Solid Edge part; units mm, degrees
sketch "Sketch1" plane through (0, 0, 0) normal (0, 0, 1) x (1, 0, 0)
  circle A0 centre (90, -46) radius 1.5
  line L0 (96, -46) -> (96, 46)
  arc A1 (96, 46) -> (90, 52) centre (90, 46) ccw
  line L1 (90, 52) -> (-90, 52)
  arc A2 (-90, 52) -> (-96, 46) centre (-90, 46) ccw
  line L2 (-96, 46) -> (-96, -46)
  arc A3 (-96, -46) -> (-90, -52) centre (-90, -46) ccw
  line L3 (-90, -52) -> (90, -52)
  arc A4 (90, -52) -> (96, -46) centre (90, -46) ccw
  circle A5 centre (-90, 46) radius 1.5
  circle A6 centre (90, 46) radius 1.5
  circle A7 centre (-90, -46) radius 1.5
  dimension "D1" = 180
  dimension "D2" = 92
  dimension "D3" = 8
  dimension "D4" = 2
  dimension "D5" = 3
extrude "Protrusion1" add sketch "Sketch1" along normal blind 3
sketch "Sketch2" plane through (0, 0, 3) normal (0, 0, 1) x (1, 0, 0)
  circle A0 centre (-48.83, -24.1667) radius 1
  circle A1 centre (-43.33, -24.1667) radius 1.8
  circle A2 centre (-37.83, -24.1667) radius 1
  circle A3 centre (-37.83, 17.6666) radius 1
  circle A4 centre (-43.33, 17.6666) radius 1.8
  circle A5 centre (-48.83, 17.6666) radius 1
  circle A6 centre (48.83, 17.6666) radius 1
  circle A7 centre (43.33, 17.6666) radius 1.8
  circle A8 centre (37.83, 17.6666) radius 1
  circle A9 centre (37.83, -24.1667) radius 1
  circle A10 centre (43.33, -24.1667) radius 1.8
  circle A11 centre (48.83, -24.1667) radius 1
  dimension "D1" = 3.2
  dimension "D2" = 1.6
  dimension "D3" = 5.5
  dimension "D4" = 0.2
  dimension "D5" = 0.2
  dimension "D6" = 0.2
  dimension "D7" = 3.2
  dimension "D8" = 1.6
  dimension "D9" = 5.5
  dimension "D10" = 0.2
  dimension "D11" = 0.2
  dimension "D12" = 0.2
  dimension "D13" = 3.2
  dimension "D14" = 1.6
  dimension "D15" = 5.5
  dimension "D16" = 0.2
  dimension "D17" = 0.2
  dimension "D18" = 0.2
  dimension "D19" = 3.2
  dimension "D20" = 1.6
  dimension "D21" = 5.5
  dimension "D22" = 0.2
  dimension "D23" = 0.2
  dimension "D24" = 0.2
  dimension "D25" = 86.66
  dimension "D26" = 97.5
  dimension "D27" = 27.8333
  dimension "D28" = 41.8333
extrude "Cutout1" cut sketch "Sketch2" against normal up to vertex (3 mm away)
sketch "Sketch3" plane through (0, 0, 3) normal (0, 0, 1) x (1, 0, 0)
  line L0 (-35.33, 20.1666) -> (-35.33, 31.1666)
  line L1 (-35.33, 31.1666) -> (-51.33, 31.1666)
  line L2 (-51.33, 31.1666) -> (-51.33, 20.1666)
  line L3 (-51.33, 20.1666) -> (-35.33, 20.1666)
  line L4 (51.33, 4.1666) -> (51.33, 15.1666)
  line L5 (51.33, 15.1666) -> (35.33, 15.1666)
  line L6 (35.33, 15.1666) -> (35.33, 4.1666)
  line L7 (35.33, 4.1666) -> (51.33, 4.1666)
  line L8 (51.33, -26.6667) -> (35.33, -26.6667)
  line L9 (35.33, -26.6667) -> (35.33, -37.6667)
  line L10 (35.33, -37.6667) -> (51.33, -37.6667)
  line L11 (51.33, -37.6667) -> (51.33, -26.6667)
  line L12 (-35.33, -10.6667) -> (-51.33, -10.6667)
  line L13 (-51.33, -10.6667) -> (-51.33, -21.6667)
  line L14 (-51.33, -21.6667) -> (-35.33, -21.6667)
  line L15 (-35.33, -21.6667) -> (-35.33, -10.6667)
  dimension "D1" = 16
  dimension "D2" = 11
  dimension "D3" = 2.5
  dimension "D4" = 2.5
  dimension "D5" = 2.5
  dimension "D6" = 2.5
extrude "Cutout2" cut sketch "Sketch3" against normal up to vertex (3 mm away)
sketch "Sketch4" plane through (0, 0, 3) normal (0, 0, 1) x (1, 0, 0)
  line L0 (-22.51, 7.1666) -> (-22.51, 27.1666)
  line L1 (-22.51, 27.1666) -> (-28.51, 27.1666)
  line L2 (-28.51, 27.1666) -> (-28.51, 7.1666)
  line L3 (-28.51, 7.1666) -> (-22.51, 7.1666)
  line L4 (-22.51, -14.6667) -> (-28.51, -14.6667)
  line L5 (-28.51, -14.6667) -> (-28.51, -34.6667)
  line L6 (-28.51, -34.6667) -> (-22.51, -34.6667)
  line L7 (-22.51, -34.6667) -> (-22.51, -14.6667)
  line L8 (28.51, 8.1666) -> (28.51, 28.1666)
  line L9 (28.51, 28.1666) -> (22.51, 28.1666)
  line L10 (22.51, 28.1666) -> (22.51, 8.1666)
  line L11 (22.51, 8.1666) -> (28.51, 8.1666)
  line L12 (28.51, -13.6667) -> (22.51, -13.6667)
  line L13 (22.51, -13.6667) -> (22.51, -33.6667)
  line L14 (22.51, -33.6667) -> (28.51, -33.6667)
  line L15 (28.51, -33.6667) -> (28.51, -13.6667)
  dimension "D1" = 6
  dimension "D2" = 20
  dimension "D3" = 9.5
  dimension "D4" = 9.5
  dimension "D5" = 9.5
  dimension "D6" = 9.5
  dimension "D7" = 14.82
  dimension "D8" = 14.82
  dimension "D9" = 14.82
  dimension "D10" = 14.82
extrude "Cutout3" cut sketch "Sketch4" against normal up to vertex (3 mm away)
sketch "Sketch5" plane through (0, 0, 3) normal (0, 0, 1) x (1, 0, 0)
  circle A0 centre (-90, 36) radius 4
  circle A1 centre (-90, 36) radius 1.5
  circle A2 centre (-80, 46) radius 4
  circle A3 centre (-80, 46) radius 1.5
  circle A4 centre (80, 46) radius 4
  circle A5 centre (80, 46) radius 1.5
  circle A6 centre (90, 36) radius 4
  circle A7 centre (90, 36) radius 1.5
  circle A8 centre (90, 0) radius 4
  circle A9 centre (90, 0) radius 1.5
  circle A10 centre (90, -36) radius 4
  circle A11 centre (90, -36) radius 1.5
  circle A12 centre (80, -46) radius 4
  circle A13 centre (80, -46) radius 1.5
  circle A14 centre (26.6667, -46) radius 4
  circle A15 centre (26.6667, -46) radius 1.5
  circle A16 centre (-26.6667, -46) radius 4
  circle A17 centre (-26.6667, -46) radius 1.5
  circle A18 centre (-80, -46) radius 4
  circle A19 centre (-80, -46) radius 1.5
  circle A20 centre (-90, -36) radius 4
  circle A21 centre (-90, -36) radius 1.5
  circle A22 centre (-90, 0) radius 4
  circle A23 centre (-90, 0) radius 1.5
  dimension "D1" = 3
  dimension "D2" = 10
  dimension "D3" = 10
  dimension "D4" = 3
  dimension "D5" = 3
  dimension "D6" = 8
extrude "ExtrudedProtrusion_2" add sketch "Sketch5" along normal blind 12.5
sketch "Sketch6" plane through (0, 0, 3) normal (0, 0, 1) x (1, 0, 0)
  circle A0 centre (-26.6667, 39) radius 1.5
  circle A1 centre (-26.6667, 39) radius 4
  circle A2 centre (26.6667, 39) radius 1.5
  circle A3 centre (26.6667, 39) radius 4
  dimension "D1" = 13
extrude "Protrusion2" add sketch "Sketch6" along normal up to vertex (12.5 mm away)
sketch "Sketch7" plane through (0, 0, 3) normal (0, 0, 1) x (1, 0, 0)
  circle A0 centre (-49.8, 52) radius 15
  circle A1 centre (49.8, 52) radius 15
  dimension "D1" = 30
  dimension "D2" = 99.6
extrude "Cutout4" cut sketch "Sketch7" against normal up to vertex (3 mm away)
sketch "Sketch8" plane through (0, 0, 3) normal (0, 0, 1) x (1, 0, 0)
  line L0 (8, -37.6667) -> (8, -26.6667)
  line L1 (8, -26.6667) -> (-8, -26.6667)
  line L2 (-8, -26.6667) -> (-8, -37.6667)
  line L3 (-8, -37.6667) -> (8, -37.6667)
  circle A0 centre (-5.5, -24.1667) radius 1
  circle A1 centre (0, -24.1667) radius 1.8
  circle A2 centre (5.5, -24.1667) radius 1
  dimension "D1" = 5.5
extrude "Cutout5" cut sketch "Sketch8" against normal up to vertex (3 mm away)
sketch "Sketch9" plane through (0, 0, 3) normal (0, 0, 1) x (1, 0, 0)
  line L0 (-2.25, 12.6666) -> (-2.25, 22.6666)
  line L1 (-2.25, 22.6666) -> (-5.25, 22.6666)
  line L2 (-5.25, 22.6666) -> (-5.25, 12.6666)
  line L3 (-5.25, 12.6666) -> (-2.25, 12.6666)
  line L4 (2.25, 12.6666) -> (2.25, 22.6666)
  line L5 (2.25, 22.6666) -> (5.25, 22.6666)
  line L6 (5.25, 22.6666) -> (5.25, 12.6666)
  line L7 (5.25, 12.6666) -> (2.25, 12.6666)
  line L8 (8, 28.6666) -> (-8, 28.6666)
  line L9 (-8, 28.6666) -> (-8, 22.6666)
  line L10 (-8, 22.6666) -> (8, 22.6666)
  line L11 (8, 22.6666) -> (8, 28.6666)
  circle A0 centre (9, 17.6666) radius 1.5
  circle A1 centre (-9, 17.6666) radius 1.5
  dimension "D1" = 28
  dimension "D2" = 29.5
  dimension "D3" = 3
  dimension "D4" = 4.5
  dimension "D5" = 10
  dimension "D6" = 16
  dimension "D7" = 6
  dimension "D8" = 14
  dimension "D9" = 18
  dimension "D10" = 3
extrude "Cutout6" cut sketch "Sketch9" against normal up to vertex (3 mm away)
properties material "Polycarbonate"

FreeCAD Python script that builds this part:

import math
import FreeCAD as App
import Part
import Sketcher
Q = App.Units.Quantity

doc = App.newDocument("Part")
body = doc.addObject("PartDesign::Body", "Body")

sketch1 = body.newObject("Sketcher::SketchObject", "Sketch")
sketch1.AttachmentSupport = (doc.getObject("XY_Plane"), [""])
sketch1.MapMode = "FlatFace"
sketch1.addGeometry([
    Part.ArcOfCircle(Part.Circle(App.Vector(90, -46, 0), App.Vector(0, 0, 1), 6), math.radians(-90), math.radians(0)),
    Part.LineSegment(App.Vector(96, -46, 0), App.Vector(96, 46, 0)),
    Part.ArcOfCircle(Part.Circle(App.Vector(90, 46, 0), App.Vector(0, 0, 1), 6), math.radians(0), math.radians(90)),
    Part.LineSegment(App.Vector(90, 52, 0), App.Vector(-90, 52, 0)),
    Part.ArcOfCircle(Part.Circle(App.Vector(-90, 46, 0), App.Vector(0, 0, 1), 6), math.radians(90), math.radians(180)),
    Part.LineSegment(App.Vector(-96, 46, 0), App.Vector(-96, -46, 0)),
    Part.ArcOfCircle(Part.Circle(App.Vector(-90, -46, 0), App.Vector(0, 0, 1), 6), math.radians(180), math.radians(270)),
    Part.LineSegment(App.Vector(-90, -52, 0), App.Vector(90, -52, 0)),
    Part.Circle(App.Vector(-90, -46, 0), App.Vector(0, 0, 1), 1.5),
    Part.Circle(App.Vector(90, -46, 0), App.Vector(0, 0, 1), 1.5),
    Part.Circle(App.Vector(-90, 46, 0), App.Vector(0, 0, 1), 1.5),
    Part.Circle(App.Vector(90, 46, 0), App.Vector(0, 0, 1), 1.5),
], False)
sketch1.addConstraint([
    Sketcher.Constraint("Tangent", 0, 2, 1, 1),
    Sketcher.Constraint("Tangent", 1, 2, 2, 1),
    Sketcher.Constraint("Tangent", 2, 2, 3, 1),
    Sketcher.Constraint("Tangent", 3, 2, 4, 1),
    Sketcher.Constraint("Tangent", 4, 2, 5, 1),
    Sketcher.Constraint("Tangent", 5, 2, 6, 1),
    Sketcher.Constraint("Tangent", 6, 2, 7, 1),
    Sketcher.Constraint("Tangent", 7, 2, 0, 1),
    Sketcher.Constraint("Vertical", 1),
    Sketcher.Constraint("Horizontal", 3),
    Sketcher.Constraint("Vertical", 5),
    Sketcher.Constraint("Horizontal", 7),
    Sketcher.Constraint("Coincident", 8, 3, 6, 3),
    Sketcher.Constraint("Coincident", 9, 3, 0, 3),
    Sketcher.Constraint("Coincident", 10, 3, 4, 3),
    Sketcher.Constraint("Coincident", 11, 3, 2, 3),
    Sketcher.Constraint("Equal", 0, 2),
    Sketcher.Constraint("Equal", 2, 4),
    Sketcher.Constraint("Equal", 4, 6),
    Sketcher.Constraint("Equal", 8, 9),
    Sketcher.Constraint("Equal", 9, 10),
    Sketcher.Constraint("Equal", 10, 11),
    Sketcher.Constraint("Symmetric", 0, 3, 4, 3, -1, 1),
    Sketcher.Constraint("Diameter", 8, Q("3 mm")),
    Sketcher.Constraint("Radius", 0, Q("6 mm")),
    Sketcher.Constraint("DistanceX", 3, 2, 3, 1, Q("180 mm")),
    Sketcher.Constraint("DistanceY", 1, 1, 1, 2, Q("92 mm")),
])
pad1 = body.newObject("PartDesign::Pad", "Pad")
pad1.Profile = sketch1
pad1.Length = 3

sketch2 = body.newObject("Sketcher::SketchObject", "Sketch001")
sketch2.AttachmentSupport = (doc.getObject("XY_Plane"), [""])
sketch2.MapMode = "FlatFace"
sketch2.AttachmentOffset = App.Placement(App.Vector(0, 0, 3), App.Rotation())
sketch2.addGeometry([
    Part.Circle(App.Vector(-48.8, -24.2, 0), App.Vector(0, 0, 1), 1),
    Part.Circle(App.Vector(-43.3, -24.2, 0), App.Vector(0, 0, 1), 1.8),
    Part.Circle(App.Vector(-37.8, -24.2, 0), App.Vector(0, 0, 1), 1),
    Part.Circle(App.Vector(-37.8, 17.7, 0), App.Vector(0, 0, 1), 1),
    Part.Circle(App.Vector(-43.3, 17.7, 0), App.Vector(0, 0, 1), 1.8),
    Part.Circle(App.Vector(-48.8, 17.7, 0), App.Vector(0, 0, 1), 1),
    Part.Circle(App.Vector(48.8, 17.7, 0), App.Vector(0, 0, 1), 1),
    Part.Circle(App.Vector(43.3, 17.7, 0), App.Vector(0, 0, 1), 1.8),
    Part.Circle(App.Vector(37.8, 17.7, 0), App.Vector(0, 0, 1), 1),
    Part.Circle(App.Vector(37.8, -24.2, 0), App.Vector(0, 0, 1), 1),
    Part.Circle(App.Vector(43.3, -24.2, 0), App.Vector(0, 0, 1), 1.8),
    Part.Circle(App.Vector(48.8, -24.2, 0), App.Vector(0, 0, 1), 1),
], False)
sketch2.addConstraint([
    Sketcher.Constraint("Equal", 0, 2),
    Sketcher.Constraint("Equal", 2, 3),
    Sketcher.Constraint("Equal", 1, 4),
    Sketcher.Constraint("Equal", 3, 5),
    Sketcher.Constraint("Equal", 5, 6),
    Sketcher.Constraint("Equal", 4, 7),
    Sketcher.Constraint("Equal", 6, 8),
    Sketcher.Constraint("Equal", 8, 9),
    Sketcher.Constraint("Equal", 7, 10),
    Sketcher.Constraint("Equal", 9, 11),
    Sketcher.Constraint("Symmetric", 5, 3, 6, 3, -2),
    Sketcher.Constraint("Symmetric", 4, 3, 7, 3, -2),
    Sketcher.Constraint("Symmetric", 3, 3, 8, 3, -2),
    Sketcher.Constraint("Symmetric", 2, 3, 9, 3, -2),
    Sketcher.Constraint("Symmetric", 1, 3, 10, 3, -2),
    Sketcher.Constraint("Symmetric", 0, 3, 11, 3, -2),
    Sketcher.Constraint("Horizontal", 0, 3, 1, 3),
    Sketcher.Constraint("Horizontal", 1, 3, 2, 3),
    Sketcher.Constraint("Horizontal", 3, 3, 4, 3),
    Sketcher.Constraint("Horizontal", 4, 3, 5, 3),
    Sketcher.Constraint("Vertical", 2, 3, 3, 3),
    Sketcher.Constraint("Vertical", 1, 3, 4, 3),
    Sketcher.Constraint("Vertical", 0, 3, 5, 3),
    Sketcher.Constraint("Diameter", 0, Q("2 mm")),
    Sketcher.Constraint("Diameter", 1, Q("3.6 mm")),
    Sketcher.Constraint("DistanceX", 0, 3, 2, 3, Q("11 mm")),
    Sketcher.Constraint("DistanceX", 0, 3, 1, 3, Q("5.5 mm")),
    Sketcher.Constraint("DistanceX", 0, 3, -1, 1, Q("48.83 mm")),
    Sketcher.Constraint("DistanceY", 0, 3, -1, 1, Q("24.1667 mm")),
    Sketcher.Constraint("DistanceY", -1, 1, 3, 3, Q("17.6666 mm")),
])
pocket1 = body.newObject("PartDesign::Pocket", "Pocket")
pocket1.Profile = sketch2
pocket1.Length = 3

sketch3 = body.newObject("Sketcher::SketchObject", "Sketch002")
sketch3.AttachmentSupport = (doc.getObject("XY_Plane"), [""])
sketch3.MapMode = "FlatFace"
sketch3.AttachmentOffset = App.Placement(App.Vector(0, 0, 3), App.Rotation())
sketch3.addGeometry([
    Part.LineSegment(App.Vector(-51, 20, 0), App.Vector(-35, 20, 0)),
    Part.LineSegment(App.Vector(-35, 20, 0), App.Vector(-35, 31, 0)),
    Part.LineSegment(App.Vector(-35, 31, 0), App.Vector(-51, 31, 0)),
    Part.LineSegment(App.Vector(-51, 31, 0), App.Vector(-51, 20, 0)),
    Part.LineSegment(App.Vector(35, 4, 0), App.Vector(51, 4, 0)),
    Part.LineSegment(App.Vector(51, 4, 0), App.Vector(51, 15, 0)),
    Part.LineSegment(App.Vector(51, 15, 0), App.Vector(35, 15, 0)),
    Part.LineSegment(App.Vector(35, 15, 0), App.Vector(35, 4, 0)),
    Part.LineSegment(App.Vector(51, -38, 0), App.Vector(51, -27, 0)),
    Part.LineSegment(App.Vector(51, -27, 0), App.Vector(35, -27, 0)),
    Part.LineSegment(App.Vector(35, -27, 0), App.Vector(35, -38, 0)),
    Part.LineSegment(App.Vector(35, -38, 0), App.Vector(51, -38, 0)),
    Part.LineSegment(App.Vector(-35, -22, 0), App.Vector(-35, -11, 0)),
    Part.LineSegment(App.Vector(-35, -11, 0), App.Vector(-51, -11, 0)),
    Part.LineSegment(App.Vector(-51, -11, 0), App.Vector(-51, -22, 0)),
    Part.LineSegment(App.Vector(-51, -22, 0), App.Vector(-35, -22, 0)),
], False)
sketch3.addConstraint([
    Sketcher.Constraint("Coincident", 0, 2, 1, 1),
    Sketcher.Constraint("Coincident", 1, 2, 2, 1),
    Sketcher.Constraint("Coincident", 2, 2, 3, 1),
    Sketcher.Constraint("Coincident", 3, 2, 0, 1),
    Sketcher.Constraint("Coincident", 4, 2, 5, 1),
    Sketcher.Constraint("Coincident", 5, 2, 6, 1),
    Sketcher.Constraint("Coincident", 6, 2, 7, 1),
    Sketcher.Constraint("Coincident", 7, 2, 4, 1),
    Sketcher.Constraint("Coincident", 8, 2, 9, 1),
    Sketcher.Constraint("Coincident", 9, 2, 10, 1),
    Sketcher.Constraint("Coincident", 10, 2, 11, 1),
    Sketcher.Constraint("Coincident", 11, 2, 8, 1),
    Sketcher.Constraint("Coincident", 12, 2, 13, 1),
    Sketcher.Constraint("Coincident", 13, 2, 14, 1),
    Sketcher.Constraint("Coincident", 14, 2, 15, 1),
    Sketcher.Constraint("Coincident", 15, 2, 12, 1),
    Sketcher.Constraint("Horizontal", 0),
    Sketcher.Constraint("Vertical", 1),
    Sketcher.Constraint("Horizontal", 2),
    Sketcher.Constraint("Vertical", 3),
    Sketcher.Constraint("Horizontal", 4),
    Sketcher.Constraint("Vertical", 5),
    Sketcher.Constraint("Horizontal", 6),
    Sketcher.Constraint("Vertical", 7),
    Sketcher.Constraint("Vertical", 8),
    Sketcher.Constraint("Horizontal", 9),
    Sketcher.Constraint("Vertical", 10),
    Sketcher.Constraint("Horizontal", 11),
    Sketcher.Constraint("Vertical", 12),
    Sketcher.Constraint("Horizontal", 13),
    Sketcher.Constraint("Vertical", 14),
    Sketcher.Constraint("Horizontal", 15),
    Sketcher.Constraint("Vertical", 5, 2, 8, 2),
    Sketcher.Constraint("Vertical", 7, 2, 9, 2),
    Sketcher.Constraint("Vertical", 1, 2, 12, 2),
    Sketcher.Constraint("Vertical", 3, 2, 13, 2),
    Sketcher.Constraint("Equal", 2, 4),
    Sketcher.Constraint("Equal", 3, 5),
    Sketcher.Constraint("Equal", 7, 8),
    Sketcher.Constraint("Equal", 10, 12),
    Sketcher.Constraint("DistanceX", 0, 1, 0, 2, Q("16 mm")),
    Sketcher.Constraint("DistanceY", 1, 1, 1, 2, Q("11 mm")),
    Sketcher.Constraint("DistanceY", 4, 2, 0, 2, Q("16 mm")),
    Sketcher.Constraint("DistanceX", 0, 2, -1, 1, Q("35.33 mm")),
    Sketcher.Constraint("DistanceX", -1, 1, 4, 2, Q("51.33 mm")),
    Sketcher.Constraint("DistanceY", -1, 1, 0, 2, Q("20.1666 mm")),
    Sketcher.Constraint("DistanceY", 8, 2, -1, 1, Q("26.6667 mm")),
    Sketcher.Constraint("DistanceY", 12, 2, -1, 1, Q("10.6667 mm")),
])
pocket2 = body.newObject("PartDesign::Pocket", "Pocket001")
pocket2.Profile = sketch3
pocket2.Length = 3

sketch4 = body.newObject("Sketcher::SketchObject", "Sketch003")
sketch4.AttachmentSupport = (doc.getObject("XY_Plane"), [""])
sketch4.MapMode = "FlatFace"
sketch4.AttachmentOffset = App.Placement(App.Vector(0, 0, 3), App.Rotation())
sketch4.addGeometry([
    Part.LineSegment(App.Vector(-29, 7, 0), App.Vector(-23, 7, 0)),
    Part.LineSegment(App.Vector(-23, 7, 0), App.Vector(-23, 27, 0)),
    Part.LineSegment(App.Vector(-23, 27, 0), App.Vector(-29, 27, 0)),
    Part.LineSegment(App.Vector(-29, 27, 0), App.Vector(-29, 7, 0)),
    Part.LineSegment(App.Vector(-23, -35, 0), App.Vector(-23, -15, 0)),
    Part.LineSegment(App.Vector(-23, -15, 0), App.Vector(-29, -15, 0)),
    Part.LineSegment(App.Vector(-29, -15, 0), App.Vector(-29, -35, 0)),
    Part.LineSegment(App.Vector(-29, -35, 0), App.Vector(-23, -35, 0)),
    Part.LineSegment(App.Vector(23, 8, 0), App.Vector(29, 8, 0)),
    Part.LineSegment(App.Vector(29, 8, 0), App.Vector(29, 28, 0)),
    Part.LineSegment(App.Vector(29, 28, 0), App.Vector(23, 28, 0)),
    Part.LineSegment(App.Vector(23, 28, 0), App.Vector(23, 8, 0)),
    Part.LineSegment(App.Vector(29, -34, 0), App.Vector(29, -14, 0)),
    Part.LineSegment(App.Vector(29, -14, 0), App.Vector(23, -14, 0)),
    Part.LineSegment(App.Vector(23, -14, 0), App.Vector(23, -34, 0)),
    Part.LineSegment(App.Vector(23, -34, 0), App.Vector(29, -34, 0)),
], False)
sketch4.addConstraint([
    Sketcher.Constraint("Coincident", 0, 2, 1, 1),
    Sketcher.Constraint("Coincident", 1, 2, 2, 1),
    Sketcher.Constraint("Coincident", 2, 2, 3, 1),
    Sketcher.Constraint("Coincident", 3, 2, 0, 1),
    Sketcher.Constraint("Coincident", 4, 2, 5, 1),
    Sketcher.Constraint("Coincident", 5, 2, 6, 1),
    Sketcher.Constraint("Coincident", 6, 2, 7, 1),
    Sketcher.Constraint("Coincident", 7, 2, 4, 1),
    Sketcher.Constraint("Coincident", 8, 2, 9, 1),
    Sketcher.Constraint("Coincident", 9, 2, 10, 1),
    Sketcher.Constraint("Coincident", 10, 2, 11, 1),
    Sketcher.Constraint("Coincident", 11, 2, 8, 1),
    Sketcher.Constraint("Coincident", 12, 2, 13, 1),
    Sketcher.Constraint("Coincident", 13, 2, 14, 1),
    Sketcher.Constraint("Coincident", 14, 2, 15, 1),
    Sketcher.Constraint("Coincident", 15, 2, 12, 1),
    Sketcher.Constraint("Horizontal", 0),
    Sketcher.Constraint("Vertical", 1),
    Sketcher.Constraint("Horizontal", 2),
    Sketcher.Constraint("Vertical", 3),
    Sketcher.Constraint("Vertical", 4),
    Sketcher.Constraint("Horizontal", 5),
    Sketcher.Constraint("Vertical", 6),
    Sketcher.Constraint("Horizontal", 7),
    Sketcher.Constraint("Horizontal", 8),
    Sketcher.Constraint("Vertical", 9),
    Sketcher.Constraint("Horizontal", 10),
    Sketcher.Constraint("Vertical", 11),
    Sketcher.Constraint("Vertical", 12),
    Sketcher.Constraint("Horizontal", 13),
    Sketcher.Constraint("Vertical", 14),
    Sketcher.Constraint("Horizontal", 15),
    Sketcher.Constraint("Vertical", 1, 2, 4, 2),
    Sketcher.Constraint("Vertical", 3, 2, 5, 2),
    Sketcher.Constraint("Vertical", 9, 2, 12, 2),
    Sketcher.Constraint("Vertical", 11, 2, 13, 2),
    Sketcher.Constraint("Equal", 7, 8),
    Sketcher.Constraint("Equal", 3, 4),
    Sketcher.Constraint("Equal", 6, 9),
    Sketcher.Constraint("Equal", 11, 12),
    Sketcher.Constraint("DistanceX", 0, 1, 0, 2, Q("6 mm")),
    Sketcher.Constraint("DistanceY", 1, 1, 1, 2, Q("20 mm")),
    Sketcher.Constraint("DistanceY", 0, 2, 8, 2, Q("1 mm")),
    Sketcher.Constraint("DistanceY", 4, 2, 12, 2, Q("1 mm")),
    Sketcher.Constraint("DistanceX", 0, 2, -1, 1, Q("22.51 mm")),
    Sketcher.Constraint("DistanceX", -1, 1, 8, 2, Q("28.51 mm")),
    Sketcher.Constraint("DistanceY", -1, 1, 0, 2, Q("7.1666 mm")),
    Sketcher.Constraint("DistanceY", 4, 2, -1, 1, Q("14.6667 mm")),
])
pocket3 = body.newObject("PartDesign::Pocket", "Pocket002")
pocket3.Profile = sketch4
pocket3.Length = 3

sketch5 = body.newObject("Sketcher::SketchObject", "Sketch004")
sketch5.AttachmentSupport = (doc.getObject("XY_Plane"), [""])
sketch5.MapMode = "FlatFace"
sketch5.AttachmentOffset = App.Placement(App.Vector(0, 0, 3), App.Rotation())
sketch5.addGeometry([
    Part.Circle(App.Vector(-90, 36, 0), App.Vector(0, 0, 1), 4),
    Part.Circle(App.Vector(-90, 36, 0), App.Vector(0, 0, 1), 1.5),
    Part.Circle(App.Vector(-80, 46, 0), App.Vector(0, 0, 1), 4),
    Part.Circle(App.Vector(-80, 46, 0), App.Vector(0, 0, 1), 1.5),
    Part.Circle(App.Vector(80, 46, 0), App.Vector(0, 0, 1), 4),
    Part.Circle(App.Vector(80, 46, 0), App.Vector(0, 0, 1), 1.5),
    Part.Circle(App.Vector(90, 36, 0), App.Vector(0, 0, 1), 4),
    Part.Circle(App.Vector(90, 36, 0), App.Vector(0, 0, 1), 1.5),
    Part.Circle(App.Vector(90, 0, 0), App.Vector(0, 0, 1), 4),
    Part.Circle(App.Vector(90, 0, 0), App.Vector(0, 0, 1), 1.5),
    Part.Circle(App.Vector(90, -36, 0), App.Vector(0, 0, 1), 4),
    Part.Circle(App.Vector(90, -36, 0), App.Vector(0, 0, 1), 1.5),
    Part.Circle(App.Vector(80, -46, 0), App.Vector(0, 0, 1), 4),
    Part.Circle(App.Vector(80, -46, 0), App.Vector(0, 0, 1), 1.5),
    Part.Circle(App.Vector(26.7, -46, 0), App.Vector(0, 0, 1), 4),
    Part.Circle(App.Vector(26.7, -46, 0), App.Vector(0, 0, 1), 1.5),
    Part.Circle(App.Vector(-26.7, -46, 0), App.Vector(0, 0, 1), 4),
    Part.Circle(App.Vector(-26.7, -46, 0), App.Vector(0, 0, 1), 1.5),
    Part.Circle(App.Vector(-80, -46, 0), App.Vector(0, 0, 1), 4),
    Part.Circle(App.Vector(-80, -46, 0), App.Vector(0, 0, 1), 1.5),
    Part.Circle(App.Vector(-90, -36, 0), App.Vector(0, 0, 1), 4),
    Part.Circle(App.Vector(-90, -36, 0), App.Vector(0, 0, 1), 1.5),
    Part.Circle(App.Vector(-90, 0, 0), App.Vector(0, 0, 1), 4),
    Part.Circle(App.Vector(-90, 0, 0), App.Vector(0, 0, 1), 1.5),
], False)
sketch5.addConstraint([
    Sketcher.Constraint("Coincident", 1, 3, 0, 3),
    Sketcher.Constraint("Coincident", 3, 3, 2, 3),
    Sketcher.Constraint("Coincident", 5, 3, 4, 3),
    Sketcher.Constraint("Coincident", 7, 3, 6, 3),
    Sketcher.Constraint("Coincident", 9, 3, 8, 3),
    Sketcher.Constraint("Coincident", 11, 3, 10, 3),
    Sketcher.Constraint("Coincident", 13, 3, 12, 3),
    Sketcher.Constraint("Coincident", 15, 3, 14, 3),
    Sketcher.Constraint("Coincident", 17, 3, 16, 3),
    Sketcher.Constraint("Coincident", 19, 3, 18, 3),
    Sketcher.Constraint("Coincident", 21, 3, 20, 3),
    Sketcher.Constraint("Coincident", 23, 3, 22, 3),
    Sketcher.Constraint("Equal", 0, 2),
    Sketcher.Constraint("Equal", 1, 3),
    Sketcher.Constraint("Equal", 2, 4),
    Sketcher.Constraint("Equal", 3, 5),
    Sketcher.Constraint("Equal", 4, 6),
    Sketcher.Constraint("Equal", 5, 7),
    Sketcher.Constraint("Equal", 6, 8),
    Sketcher.Constraint("Equal", 7, 9),
    Sketcher.Constraint("Equal", 8, 10),
    Sketcher.Constraint("Equal", 9, 11),
    Sketcher.Constraint("Equal", 10, 12),
    Sketcher.Constraint("Equal", 11, 13),
    Sketcher.Constraint("Equal", 12, 14),
    Sketcher.Constraint("Equal", 13, 15),
    Sketcher.Constraint("Equal", 14, 16),
    Sketcher.Constraint("Equal", 15, 17),
    Sketcher.Constraint("Equal", 16, 18),
    Sketcher.Constraint("Equal", 17, 19),
    Sketcher.Constraint("Equal", 18, 20),
    Sketcher.Constraint("Equal", 19, 21),
    Sketcher.Constraint("Equal", 20, 22),
    Sketcher.Constraint("Equal", 21, 23),
    Sketcher.Constraint("Symmetric", 0, 3, 10, 3, -1, 1),
    Sketcher.Constraint("Symmetric", 2, 3, 12, 3, -1, 1),
    Sketcher.Constraint("Symmetric", 4, 3, 18, 3, -1, 1),
    Sketcher.Constraint("Symmetric", 6, 3, 20, 3, -1, 1),
    Sketcher.Constraint("Symmetric", 8, 3, 22, 3, -1, 1),
    Sketcher.Constraint("Symmetric", 2, 3, 4, 3, -2),
    Sketcher.Constraint("Symmetric", 0, 3, 6, 3, -2),
    Sketcher.Constraint("Symmetric", 14, 3, 16, 3, -2),
    Sketcher.Constraint("PointOnObject", 8, 3, -1),
    Sketcher.Constraint("Horizontal", 13, 3, 14, 3),
    Sketcher.Constraint("Vertical", 7, 3, 8, 3),
    Sketcher.Constraint("Diameter", 0, Q("8 mm")),
    Sketcher.Constraint("Diameter", 1, Q("3 mm")),
    Sketcher.Constraint("DistanceX", 0, 3, -1, 1, Q("90 mm")),
    Sketcher.Constraint("DistanceY", -1, 1, 0, 3, Q("36 mm")),
    Sketcher.Constraint("DistanceX", 2, 3, -1, 1, Q("80 mm")),
    Sketcher.Constraint("DistanceY", -1, 1, 2, 3, Q("46 mm")),
    Sketcher.Constraint("DistanceX", -1, 1, 14, 3, Q("26.6667 mm")),
])
pad2 = body.newObject("PartDesign::Pad", "Pad001")
pad2.Profile = sketch5
pad2.Length = 12.5

sketch6 = body.newObject("Sketcher::SketchObject", "Sketch005")
sketch6.AttachmentSupport = (doc.getObject("XY_Plane"), [""])
sketch6.MapMode = "FlatFace"
sketch6.AttachmentOffset = App.Placement(App.Vector(0, 0, 3), App.Rotation())
sketch6.addGeometry([
    Part.Circle(App.Vector(-26.7, 39, 0), App.Vector(0, 0, 1), 4),
    Part.Circle(App.Vector(-26.7, 39, 0), App.Vector(0, 0, 1), 1.5),
    Part.Circle(App.Vector(26.7, 39, 0), App.Vector(0, 0, 1), 4),
    Part.Circle(App.Vector(26.7, 39, 0), App.Vector(0, 0, 1), 1.5),
], False)
sketch6.addConstraint([
    Sketcher.Constraint("Coincident", 1, 3, 0, 3),
    Sketcher.Constraint("Coincident", 3, 3, 2, 3),
    Sketcher.Constraint("Equal", 0, 2),
    Sketcher.Constraint("Equal", 1, 3),
    Sketcher.Constraint("Symmetric", 0, 3, 2, 3, -2),
    Sketcher.Constraint("Diameter", 0, Q("8 mm")),
    Sketcher.Constraint("Diameter", 1, Q("3 mm")),
    Sketcher.Constraint("DistanceY", -1, 1, 0, 3, Q("39 mm")),
    Sketcher.Constraint("DistanceX", 0, 3, -1, 1, Q("26.6667 mm")),
])
pad3 = body.newObject("PartDesign::Pad", "Pad002")
pad3.Profile = sketch6
pad3.Length = 12.5

sketch7 = body.newObject("Sketcher::SketchObject", "Sketch006")
sketch7.AttachmentSupport = (doc.getObject("XY_Plane"), [""])
sketch7.MapMode = "FlatFace"
sketch7.AttachmentOffset = App.Placement(App.Vector(0, 0, 3), App.Rotation())
sketch7.addGeometry([
    Part.Circle(App.Vector(-50, 52, 0), App.Vector(0, 0, 1), 15),
    Part.Circle(App.Vector(50, 52, 0), App.Vector(0, 0, 1), 15),
], False)
sketch7.addConstraint([
    Sketcher.Constraint("Equal", 0, 1),
    Sketcher.Constraint("Symmetric", 0, 3, 1, 3, -2),
    Sketcher.Constraint("Diameter", 0, Q("30 mm")),
    Sketcher.Constraint("DistanceY", -1, 1, 0, 3, Q("52 mm")),
    Sketcher.Constraint("DistanceX", 0, 3, -1, 1, Q("49.8 mm")),
])
pocket4 = body.newObject("PartDesign::Pocket", "Pocket003")
pocket4.Profile = sketch7
pocket4.Length = 3

sketch8 = body.newObject("Sketcher::SketchObject", "Sketch007")
sketch8.AttachmentSupport = (doc.getObject("XY_Plane"), [""])
sketch8.MapMode = "FlatFace"
sketch8.AttachmentOffset = App.Placement(App.Vector(0, 0, 3), App.Rotation())
sketch8.addGeometry([
    Part.LineSegment(App.Vector(-8, -37.7, 0), App.Vector(8, -37.7, 0)),
    Part.LineSegment(App.Vector(8, -37.7, 0), App.Vector(8, -26.7, 0)),
    Part.LineSegment(App.Vector(8, -26.7, 0), App.Vector(-8, -26.7, 0)),
    Part.LineSegment(App.Vector(-8, -26.7, 0), App.Vector(-8, -37.7, 0)),
    Part.Circle(App.Vector(-5.5, -24.2, 0), App.Vector(0, 0, 1), 1),
    Part.Circle(App.Vector(0, -24.2, 0), App.Vector(0, 0, 1), 1.8),
    Part.Circle(App.Vector(5.5, -24.2, 0), App.Vector(0, 0, 1), 1),
], False)
sketch8.addConstraint([
    Sketcher.Constraint("Coincident", 0, 2, 1, 1),
    Sketcher.Constraint("Coincident", 1, 2, 2, 1),
    Sketcher.Constraint("Coincident", 2, 2, 3, 1),
    Sketcher.Constraint("Coincident", 3, 2, 0, 1),
    Sketcher.Constraint("Horizontal", 0),
    Sketcher.Constraint("Vertical", 1),
    Sketcher.Constraint("Horizontal", 2),
    Sketcher.Constraint("Vertical", 3),
    Sketcher.Constraint("Equal", 4, 6),
    Sketcher.Constraint("Symmetric", 4, 3, 6, 3, -2),
    Sketcher.Constraint("PointOnObject", 5, 3, -2),
    Sketcher.Constraint("Horizontal", 4, 3, 5, 3),
    Sketcher.Constraint("Diameter", 4, Q("2 mm")),
    Sketcher.Constraint("Diameter", 5, Q("3.6 mm")),
    Sketcher.Constraint("DistanceX", 0, 1, 0, 2, Q("16 mm")),
    Sketcher.Constraint("DistanceY", 1, 1, 1, 2, Q("11 mm")),
    Sketcher.Constraint("DistanceX", -1, 1, 0, 2, Q("8 mm")),
    Sketcher.Constraint("DistanceX", 4, 3, 6, 3, Q("11 mm")),
    Sketcher.Constraint("DistanceY", 0, 2, 6, 3, Q("13.5 mm")),
    Sketcher.Constraint("DistanceY", 4, 3, -1, 1, Q("24.1667 mm")),
])
pocket5 = body.newObject("PartDesign::Pocket", "Pocket004")
pocket5.Profile = sketch8
pocket5.Length = 3

sketch9 = body.newObject("Sketcher::SketchObject", "Sketch008")
sketch9.AttachmentSupport = (doc.getObject("XY_Plane"), [""])
sketch9.MapMode = "FlatFace"
sketch9.AttachmentOffset = App.Placement(App.Vector(0, 0, 3), App.Rotation())
sketch9.addGeometry([
    Part.LineSegment(App.Vector(-5.2, 12.7, 0), App.Vector(-2.2, 12.7, 0)),
    Part.LineSegment(App.Vector(-2.2, 12.7, 0), App.Vector(-2.2, 22.7, 0)),
    Part.LineSegment(App.Vector(-2.2, 22.7, 0), App.Vector(2.2, 22.7, 0)),
    Part.LineSegment(App.Vector(2.2, 22.7, 0), App.Vector(2.2, 12.7, 0)),
    Part.LineSegment(App.Vector(2.2, 12.7, 0), App.Vector(5.2, 12.7, 0)),
    Part.LineSegment(App.Vector(5.2, 12.7, 0), App.Vector(5.2, 22.7, 0)),
    Part.LineSegment(App.Vector(5.2, 22.7, 0), App.Vector(8, 22.7, 0)),
    Part.LineSegment(App.Vector(8, 22.7, 0), App.Vector(8, 28.7, 0)),
    Part.LineSegment(App.Vector(8, 28.7, 0), App.Vector(-8, 28.7, 0)),
    Part.LineSegment(App.Vector(-8, 28.7, 0), App.Vector(-8, 22.7, 0)),
    Part.LineSegment(App.Vector(-8, 22.7, 0), App.Vector(-5.2, 22.7, 0)),
    Part.LineSegment(App.Vector(-5.2, 22.7, 0), App.Vector(-5.2, 12.7, 0)),
    Part.Circle(App.Vector(9, 17.7, 0), App.Vector(0, 0, 1), 1.5),
    Part.Circle(App.Vector(-9, 17.7, 0), App.Vector(0, 0, 1), 1.5),
], False)
sketch9.addConstraint([
    Sketcher.Constraint("Coincident", 0, 2, 1, 1),
    Sketcher.Constraint("Coincident", 1, 2, 2, 1),
    Sketcher.Constraint("Coincident", 2, 2, 3, 1),
    Sketcher.Constraint("Coincident", 3, 2, 4, 1),
    Sketcher.Constraint("Coincident", 4, 2, 5, 1),
    Sketcher.Constraint("Coincident", 5, 2, 6, 1),
    Sketcher.Constraint("Coincident", 6, 2, 7, 1),
    Sketcher.Constraint("Coincident", 7, 2, 8, 1),
    Sketcher.Constraint("Coincident", 8, 2, 9, 1),
    Sketcher.Constraint("Coincident", 9, 2, 10, 1),
    Sketcher.Constraint("Coincident", 10, 2, 11, 1),
    Sketcher.Constraint("Coincident", 11, 2, 0, 1),
    Sketcher.Constraint("Horizontal", 0),
    Sketcher.Constraint("Vertical", 1),
    Sketcher.Constraint("Horizontal", 2),
    Sketcher.Constraint("Vertical", 3),
    Sketcher.Constraint("Horizontal", 4),
    Sketcher.Constraint("Vertical", 5),
    Sketcher.Constraint("Horizontal", 6),
    Sketcher.Constraint("Vertical", 7),
    Sketcher.Constraint("Horizontal", 8),
    Sketcher.Constraint("Vertical", 9),
    Sketcher.Constraint("Horizontal", 10),
    Sketcher.Constraint("Vertical", 11),
    Sketcher.Constraint("Equal", 12, 13),
    Sketcher.Constraint("Symmetric", 12, 3, 13, 3, -2),
    Sketcher.Constraint("Symmetric", 0, 2, 3, 2, -2),
    Sketcher.Constraint("Symmetric", 6, 2, 9, 2, -2),
    Sketcher.Constraint("Horizontal", 2, 2, 5, 2),
    Sketcher.Constraint("Equal", 0, 4),
    Sketcher.Constraint("Diameter", 12, Q("3 mm")),
    Sketcher.Constraint("DistanceX", 0, 1, 0, 2, Q("3 mm")),
    Sketcher.Constraint("DistanceX", 8, 2, 8, 1, Q("16 mm")),
    Sketcher.Constraint("DistanceY", 1, 1, 1, 2, Q("10 mm")),
    Sketcher.Constraint("DistanceY", 7, 1, 7, 2, Q("6 mm")),
    Sketcher.Constraint("DistanceX", 2, 1, 2, 2, Q("4.5 mm")),
    Sketcher.Constraint("DistanceX", -1, 1, 12, 3, Q("9 mm")),
    Sketcher.Constraint("DistanceY", 0, 2, 13, 3, Q("5 mm")),
    Sketcher.Constraint("DistanceY", -1, 1, 12, 3, Q("17.6666 mm")),
])
pocket6 = body.newObject("PartDesign::Pocket", "Pocket005")
pocket6.Profile = sketch9
pocket6.Length = 3

doc.recompute()
